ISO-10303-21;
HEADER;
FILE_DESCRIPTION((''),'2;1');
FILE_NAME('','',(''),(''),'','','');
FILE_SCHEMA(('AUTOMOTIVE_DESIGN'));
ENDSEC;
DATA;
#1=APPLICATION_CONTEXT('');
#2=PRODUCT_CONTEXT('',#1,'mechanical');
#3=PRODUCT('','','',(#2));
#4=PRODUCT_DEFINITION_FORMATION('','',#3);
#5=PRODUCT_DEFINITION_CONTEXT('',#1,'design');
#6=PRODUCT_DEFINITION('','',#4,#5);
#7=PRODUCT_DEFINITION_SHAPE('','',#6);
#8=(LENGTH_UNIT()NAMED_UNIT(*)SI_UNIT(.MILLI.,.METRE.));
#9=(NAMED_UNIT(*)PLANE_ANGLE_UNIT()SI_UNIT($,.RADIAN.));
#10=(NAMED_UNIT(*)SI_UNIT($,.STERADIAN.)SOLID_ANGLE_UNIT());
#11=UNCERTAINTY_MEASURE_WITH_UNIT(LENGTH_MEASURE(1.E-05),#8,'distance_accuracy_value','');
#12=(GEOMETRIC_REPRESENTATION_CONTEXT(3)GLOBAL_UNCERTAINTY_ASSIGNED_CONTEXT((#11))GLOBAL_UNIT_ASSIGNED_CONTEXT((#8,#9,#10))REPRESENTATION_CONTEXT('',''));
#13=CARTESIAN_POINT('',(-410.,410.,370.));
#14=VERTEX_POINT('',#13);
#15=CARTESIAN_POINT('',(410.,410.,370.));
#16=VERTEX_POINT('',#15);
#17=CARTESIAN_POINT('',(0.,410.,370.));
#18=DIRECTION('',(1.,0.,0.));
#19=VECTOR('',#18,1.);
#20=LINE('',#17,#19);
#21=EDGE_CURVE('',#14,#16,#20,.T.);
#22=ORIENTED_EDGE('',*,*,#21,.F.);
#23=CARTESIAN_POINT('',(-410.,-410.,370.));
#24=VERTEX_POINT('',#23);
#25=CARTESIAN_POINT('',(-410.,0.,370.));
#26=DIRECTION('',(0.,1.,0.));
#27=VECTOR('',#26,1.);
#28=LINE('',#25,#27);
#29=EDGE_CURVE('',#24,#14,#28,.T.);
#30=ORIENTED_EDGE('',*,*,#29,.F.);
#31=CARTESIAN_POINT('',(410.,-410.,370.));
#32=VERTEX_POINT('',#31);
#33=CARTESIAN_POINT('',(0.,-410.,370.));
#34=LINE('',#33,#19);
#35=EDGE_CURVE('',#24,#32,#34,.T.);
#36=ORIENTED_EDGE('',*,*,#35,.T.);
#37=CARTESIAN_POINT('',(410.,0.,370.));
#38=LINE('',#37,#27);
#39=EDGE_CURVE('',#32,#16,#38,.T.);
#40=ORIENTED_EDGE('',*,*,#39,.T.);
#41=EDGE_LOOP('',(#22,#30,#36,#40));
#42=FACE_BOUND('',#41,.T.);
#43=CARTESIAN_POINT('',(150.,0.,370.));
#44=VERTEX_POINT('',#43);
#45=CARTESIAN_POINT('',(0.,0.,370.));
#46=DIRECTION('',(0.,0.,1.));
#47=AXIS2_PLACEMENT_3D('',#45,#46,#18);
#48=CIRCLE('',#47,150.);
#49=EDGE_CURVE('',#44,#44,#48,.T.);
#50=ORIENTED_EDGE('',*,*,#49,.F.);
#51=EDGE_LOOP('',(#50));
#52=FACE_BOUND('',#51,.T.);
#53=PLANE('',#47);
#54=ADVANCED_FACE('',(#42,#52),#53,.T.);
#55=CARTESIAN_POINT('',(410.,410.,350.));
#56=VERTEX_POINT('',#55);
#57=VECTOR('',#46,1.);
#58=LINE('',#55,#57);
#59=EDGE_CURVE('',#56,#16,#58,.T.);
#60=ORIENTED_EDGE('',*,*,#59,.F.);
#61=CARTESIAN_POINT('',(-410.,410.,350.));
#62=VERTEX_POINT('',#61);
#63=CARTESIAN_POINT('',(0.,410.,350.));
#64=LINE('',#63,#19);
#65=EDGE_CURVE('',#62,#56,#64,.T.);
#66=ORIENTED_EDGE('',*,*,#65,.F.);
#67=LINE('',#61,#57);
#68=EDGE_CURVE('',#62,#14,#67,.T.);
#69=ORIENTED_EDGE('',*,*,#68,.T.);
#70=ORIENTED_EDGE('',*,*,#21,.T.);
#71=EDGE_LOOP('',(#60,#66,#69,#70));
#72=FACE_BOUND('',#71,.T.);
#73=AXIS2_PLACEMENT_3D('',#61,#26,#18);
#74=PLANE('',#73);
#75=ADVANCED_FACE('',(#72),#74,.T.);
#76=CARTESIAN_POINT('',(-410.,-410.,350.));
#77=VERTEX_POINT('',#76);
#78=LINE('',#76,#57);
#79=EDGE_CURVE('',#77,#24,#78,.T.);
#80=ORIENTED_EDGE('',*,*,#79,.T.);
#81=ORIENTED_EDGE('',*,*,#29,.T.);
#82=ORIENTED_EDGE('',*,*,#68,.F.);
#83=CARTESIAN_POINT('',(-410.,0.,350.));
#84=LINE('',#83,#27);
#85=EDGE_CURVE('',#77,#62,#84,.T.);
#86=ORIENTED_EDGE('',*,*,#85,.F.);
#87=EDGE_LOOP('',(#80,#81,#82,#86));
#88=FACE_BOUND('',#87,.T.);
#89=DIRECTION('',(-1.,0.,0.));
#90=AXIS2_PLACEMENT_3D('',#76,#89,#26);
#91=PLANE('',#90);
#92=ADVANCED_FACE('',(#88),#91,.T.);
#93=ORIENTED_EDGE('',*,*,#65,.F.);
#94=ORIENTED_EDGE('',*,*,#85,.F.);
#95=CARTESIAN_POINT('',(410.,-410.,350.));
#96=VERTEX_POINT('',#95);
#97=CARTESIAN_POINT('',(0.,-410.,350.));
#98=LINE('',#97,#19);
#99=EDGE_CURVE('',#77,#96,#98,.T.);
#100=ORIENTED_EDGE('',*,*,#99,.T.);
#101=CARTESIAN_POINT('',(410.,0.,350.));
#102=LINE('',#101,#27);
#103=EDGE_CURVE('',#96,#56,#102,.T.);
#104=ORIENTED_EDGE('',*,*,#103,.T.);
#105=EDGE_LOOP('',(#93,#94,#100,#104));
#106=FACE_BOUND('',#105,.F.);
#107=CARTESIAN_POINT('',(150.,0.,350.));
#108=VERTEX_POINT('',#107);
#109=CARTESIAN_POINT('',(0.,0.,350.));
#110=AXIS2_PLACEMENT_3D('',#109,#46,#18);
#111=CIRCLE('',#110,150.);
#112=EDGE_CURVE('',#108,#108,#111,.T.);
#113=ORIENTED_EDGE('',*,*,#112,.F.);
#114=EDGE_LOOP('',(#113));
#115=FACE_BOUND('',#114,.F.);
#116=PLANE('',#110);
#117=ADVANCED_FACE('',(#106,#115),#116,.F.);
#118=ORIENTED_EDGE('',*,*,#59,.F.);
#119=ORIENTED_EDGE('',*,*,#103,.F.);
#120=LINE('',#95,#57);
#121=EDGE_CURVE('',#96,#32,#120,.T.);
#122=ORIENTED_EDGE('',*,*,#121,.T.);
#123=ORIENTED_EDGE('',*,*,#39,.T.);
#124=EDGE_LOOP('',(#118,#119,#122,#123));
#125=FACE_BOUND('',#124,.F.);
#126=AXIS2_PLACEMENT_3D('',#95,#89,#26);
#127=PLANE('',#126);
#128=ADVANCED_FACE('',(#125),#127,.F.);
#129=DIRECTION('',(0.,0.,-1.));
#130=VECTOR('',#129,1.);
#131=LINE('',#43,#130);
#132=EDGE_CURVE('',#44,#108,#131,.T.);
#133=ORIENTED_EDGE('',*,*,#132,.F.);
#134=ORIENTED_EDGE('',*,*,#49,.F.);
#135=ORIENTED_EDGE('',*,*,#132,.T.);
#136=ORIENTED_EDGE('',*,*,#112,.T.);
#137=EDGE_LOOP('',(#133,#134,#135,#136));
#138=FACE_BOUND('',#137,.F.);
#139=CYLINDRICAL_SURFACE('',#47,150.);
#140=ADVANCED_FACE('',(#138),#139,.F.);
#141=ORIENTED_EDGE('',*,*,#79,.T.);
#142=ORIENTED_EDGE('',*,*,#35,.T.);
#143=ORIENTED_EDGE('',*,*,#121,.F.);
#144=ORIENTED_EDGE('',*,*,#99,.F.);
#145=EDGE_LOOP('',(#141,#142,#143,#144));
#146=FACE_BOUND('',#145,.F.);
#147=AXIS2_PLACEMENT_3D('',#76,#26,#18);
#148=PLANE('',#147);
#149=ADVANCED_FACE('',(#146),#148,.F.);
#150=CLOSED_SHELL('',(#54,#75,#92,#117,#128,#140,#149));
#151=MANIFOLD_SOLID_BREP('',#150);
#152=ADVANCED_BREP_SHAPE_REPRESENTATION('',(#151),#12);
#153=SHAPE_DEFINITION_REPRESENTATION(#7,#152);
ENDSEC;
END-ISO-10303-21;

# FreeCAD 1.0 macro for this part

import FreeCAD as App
import Part
import Sketcher
from FreeCAD import Vector

doc = App.newDocument("Part")
body = doc.addObject("PartDesign::Body", "Body")

# Sketch on XY plane
sketch1 = body.newObject("Sketcher::SketchObject", "Sketch")
sketch1.AttachmentSupport = (doc.getObject("XY_Plane"), [""])
sketch1.MapMode = "FlatFace"
sketch1.AttachmentOffset = App.Placement(Vector(0, 0, 370), App.Rotation())
sketch1.addGeometry(Part.Circle(Vector(0, 0, 0), Vector(0, 0, 1), 150), False)
sketch1.addConstraint([
    Sketcher.Constraint("Coincident", 0, 3, -1, 1),
    Sketcher.Constraint("Diameter", 0, 300.0),
])
pad1 = body.newObject("PartDesign::Pad", "Pad")
pad1.Profile = sketch1
pad1.Length = 20
pad1.Reversed = True
body2 = doc.addObject("PartDesign::Body", "Body001")

# Sketch on XY plane
sketch2 = body2.newObject("Sketcher::SketchObject", "Sketch001")
sketch2.AttachmentSupport = (doc.getObject("XY_Plane001"), [""])
sketch2.MapMode = "FlatFace"
sketch2.AttachmentOffset = App.Placement(Vector(0, 0, 350), App.Rotation())
sketch2.addGeometry([
    Part.LineSegment(Vector(-410, 410, 0), Vector(-410, -410, 0)),
    Part.LineSegment(Vector(-410, -410, 0), Vector(410, -410, 0)),
    Part.LineSegment(Vector(410, -410, 0), Vector(410, 410, 0)),
    Part.LineSegment(Vector(410, 410, 0), Vector(-410, 410, 0)),
], False)
sketch2.addConstraint([
    Sketcher.Constraint("Coincident", 0, 2, 1, 1),
    Sketcher.Constraint("Coincident", 1, 2, 2, 1),
    Sketcher.Constraint("Coincident", 2, 2, 3, 1),
    Sketcher.Constraint("Coincident", 3, 2, 0, 1),
    Sketcher.Constraint("Vertical", 0),
    Sketcher.Constraint("Horizontal", 1),
    Sketcher.Constraint("Vertical", 2),
    Sketcher.Constraint("Horizontal", 3),
    Sketcher.Constraint("Symmetric", 0, 2, 2, 2, -1, 1),
    Sketcher.Constraint("Equal", 3, 0),
    Sketcher.Constraint("DistanceX", 1, 1, 1, 2, 820.0),
])
pad2 = body2.newObject("PartDesign::Pad", "Pad001")
pad2.Profile = sketch2
pad2.Length = 20
doc.recompute()

boolean = body2.newObject("PartDesign::Boolean", "Boolean")
boolean.Type = "Cut"
boolean.addObjects([body])

doc.recompute()
